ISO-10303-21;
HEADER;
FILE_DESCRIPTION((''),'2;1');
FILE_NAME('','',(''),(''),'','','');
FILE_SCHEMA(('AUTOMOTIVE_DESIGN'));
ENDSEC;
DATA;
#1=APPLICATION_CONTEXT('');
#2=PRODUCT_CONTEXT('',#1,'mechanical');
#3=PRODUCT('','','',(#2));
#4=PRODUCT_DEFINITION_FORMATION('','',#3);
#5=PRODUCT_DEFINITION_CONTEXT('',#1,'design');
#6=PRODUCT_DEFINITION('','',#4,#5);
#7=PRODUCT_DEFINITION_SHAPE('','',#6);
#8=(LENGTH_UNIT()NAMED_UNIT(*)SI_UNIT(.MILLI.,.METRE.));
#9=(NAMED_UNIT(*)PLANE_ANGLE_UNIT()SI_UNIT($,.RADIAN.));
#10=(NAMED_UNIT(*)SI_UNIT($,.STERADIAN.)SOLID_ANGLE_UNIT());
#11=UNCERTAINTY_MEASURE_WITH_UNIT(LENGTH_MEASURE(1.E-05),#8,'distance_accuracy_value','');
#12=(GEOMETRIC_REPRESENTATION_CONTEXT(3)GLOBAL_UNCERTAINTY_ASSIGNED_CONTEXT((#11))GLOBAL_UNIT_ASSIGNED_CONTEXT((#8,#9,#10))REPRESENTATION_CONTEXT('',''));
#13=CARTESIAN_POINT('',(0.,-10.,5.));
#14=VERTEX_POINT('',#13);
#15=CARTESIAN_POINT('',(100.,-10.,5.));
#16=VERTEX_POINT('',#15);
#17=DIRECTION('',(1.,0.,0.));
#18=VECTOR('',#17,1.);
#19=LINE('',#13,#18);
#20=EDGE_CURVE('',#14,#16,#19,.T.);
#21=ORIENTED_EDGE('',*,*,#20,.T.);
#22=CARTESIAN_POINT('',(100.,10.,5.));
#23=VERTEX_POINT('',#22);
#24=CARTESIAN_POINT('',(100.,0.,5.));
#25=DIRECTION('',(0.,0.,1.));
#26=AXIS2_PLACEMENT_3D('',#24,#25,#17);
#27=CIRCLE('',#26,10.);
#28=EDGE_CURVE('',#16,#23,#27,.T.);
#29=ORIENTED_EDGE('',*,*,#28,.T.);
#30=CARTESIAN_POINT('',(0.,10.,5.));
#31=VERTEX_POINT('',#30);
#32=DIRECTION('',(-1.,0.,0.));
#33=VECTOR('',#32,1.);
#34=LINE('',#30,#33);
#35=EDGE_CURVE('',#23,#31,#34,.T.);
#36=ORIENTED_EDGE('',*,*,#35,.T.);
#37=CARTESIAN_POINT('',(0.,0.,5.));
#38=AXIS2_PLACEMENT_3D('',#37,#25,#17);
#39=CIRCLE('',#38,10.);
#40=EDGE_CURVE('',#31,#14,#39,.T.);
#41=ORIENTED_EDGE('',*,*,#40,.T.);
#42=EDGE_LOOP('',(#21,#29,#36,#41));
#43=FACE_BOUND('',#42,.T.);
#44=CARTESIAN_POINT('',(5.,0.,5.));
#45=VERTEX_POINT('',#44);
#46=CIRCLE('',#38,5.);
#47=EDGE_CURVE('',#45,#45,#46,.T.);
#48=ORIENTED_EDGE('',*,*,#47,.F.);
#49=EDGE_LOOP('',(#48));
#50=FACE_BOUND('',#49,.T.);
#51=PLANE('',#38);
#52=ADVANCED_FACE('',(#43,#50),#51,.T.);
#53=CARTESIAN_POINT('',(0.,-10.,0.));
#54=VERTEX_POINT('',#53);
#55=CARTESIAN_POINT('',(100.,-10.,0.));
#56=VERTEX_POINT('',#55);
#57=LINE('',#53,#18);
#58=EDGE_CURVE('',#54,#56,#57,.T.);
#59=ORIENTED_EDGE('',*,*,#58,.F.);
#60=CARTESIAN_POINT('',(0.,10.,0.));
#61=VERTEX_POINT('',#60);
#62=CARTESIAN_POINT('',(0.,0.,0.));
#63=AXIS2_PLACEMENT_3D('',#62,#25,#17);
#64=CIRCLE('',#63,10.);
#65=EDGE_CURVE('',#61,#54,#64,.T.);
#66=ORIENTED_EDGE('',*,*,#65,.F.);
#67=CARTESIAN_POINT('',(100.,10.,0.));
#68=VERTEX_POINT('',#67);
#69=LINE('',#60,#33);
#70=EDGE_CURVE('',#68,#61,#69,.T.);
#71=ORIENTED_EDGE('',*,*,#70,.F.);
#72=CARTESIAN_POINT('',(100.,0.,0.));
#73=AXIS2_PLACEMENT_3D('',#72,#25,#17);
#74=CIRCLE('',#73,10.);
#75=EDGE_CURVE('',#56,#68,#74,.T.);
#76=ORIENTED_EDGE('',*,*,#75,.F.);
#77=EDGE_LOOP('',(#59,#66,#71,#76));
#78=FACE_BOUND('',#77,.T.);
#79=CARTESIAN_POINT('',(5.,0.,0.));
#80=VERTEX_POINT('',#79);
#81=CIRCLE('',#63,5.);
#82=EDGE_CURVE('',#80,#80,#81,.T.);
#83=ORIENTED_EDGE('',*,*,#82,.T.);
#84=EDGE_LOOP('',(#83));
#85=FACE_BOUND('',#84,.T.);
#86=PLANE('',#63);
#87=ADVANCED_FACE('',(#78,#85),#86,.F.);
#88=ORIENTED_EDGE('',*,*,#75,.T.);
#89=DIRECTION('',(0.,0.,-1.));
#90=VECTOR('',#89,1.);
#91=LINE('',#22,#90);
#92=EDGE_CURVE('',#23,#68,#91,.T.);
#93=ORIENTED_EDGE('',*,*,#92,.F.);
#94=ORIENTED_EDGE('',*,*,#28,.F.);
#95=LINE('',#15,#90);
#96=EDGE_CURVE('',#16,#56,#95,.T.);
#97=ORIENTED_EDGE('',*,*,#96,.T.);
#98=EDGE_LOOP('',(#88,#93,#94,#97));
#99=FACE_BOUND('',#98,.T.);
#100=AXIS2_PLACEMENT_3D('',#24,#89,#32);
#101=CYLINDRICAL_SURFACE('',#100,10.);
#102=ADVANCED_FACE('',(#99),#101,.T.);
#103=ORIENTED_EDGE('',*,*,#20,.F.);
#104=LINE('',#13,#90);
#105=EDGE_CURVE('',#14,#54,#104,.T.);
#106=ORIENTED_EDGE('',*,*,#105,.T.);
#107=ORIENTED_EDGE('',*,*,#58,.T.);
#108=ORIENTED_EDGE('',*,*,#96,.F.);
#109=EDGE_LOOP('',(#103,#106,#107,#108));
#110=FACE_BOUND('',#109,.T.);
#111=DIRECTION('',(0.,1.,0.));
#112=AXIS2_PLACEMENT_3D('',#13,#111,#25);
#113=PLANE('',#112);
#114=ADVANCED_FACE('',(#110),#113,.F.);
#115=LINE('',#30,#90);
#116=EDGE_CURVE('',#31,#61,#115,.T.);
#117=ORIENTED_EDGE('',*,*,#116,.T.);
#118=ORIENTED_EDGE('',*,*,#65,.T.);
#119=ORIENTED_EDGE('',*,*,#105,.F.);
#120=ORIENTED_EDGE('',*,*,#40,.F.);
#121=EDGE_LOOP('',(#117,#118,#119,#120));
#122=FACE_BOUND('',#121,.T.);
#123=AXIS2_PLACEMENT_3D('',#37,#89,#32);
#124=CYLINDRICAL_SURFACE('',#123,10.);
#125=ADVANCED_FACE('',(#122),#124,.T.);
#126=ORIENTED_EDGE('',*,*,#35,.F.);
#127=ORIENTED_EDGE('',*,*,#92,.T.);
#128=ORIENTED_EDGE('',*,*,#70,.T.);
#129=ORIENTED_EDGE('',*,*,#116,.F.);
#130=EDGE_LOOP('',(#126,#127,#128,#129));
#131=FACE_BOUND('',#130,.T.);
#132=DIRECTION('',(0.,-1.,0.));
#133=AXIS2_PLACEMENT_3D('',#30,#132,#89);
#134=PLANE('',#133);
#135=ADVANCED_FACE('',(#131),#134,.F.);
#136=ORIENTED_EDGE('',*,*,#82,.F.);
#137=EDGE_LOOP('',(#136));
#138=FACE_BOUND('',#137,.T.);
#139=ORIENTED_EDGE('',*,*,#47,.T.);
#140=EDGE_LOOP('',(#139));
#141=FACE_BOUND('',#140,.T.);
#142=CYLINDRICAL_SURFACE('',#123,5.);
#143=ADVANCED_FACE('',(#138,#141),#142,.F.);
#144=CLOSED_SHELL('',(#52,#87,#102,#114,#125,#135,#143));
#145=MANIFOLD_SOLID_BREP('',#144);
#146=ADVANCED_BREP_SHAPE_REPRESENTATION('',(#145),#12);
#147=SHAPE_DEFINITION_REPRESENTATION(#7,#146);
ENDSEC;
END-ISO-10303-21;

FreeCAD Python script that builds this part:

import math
import FreeCAD as App
import Part
import Sketcher
from FreeCAD import Vector

doc = App.newDocument("Part")
body = doc.addObject("PartDesign::Body", "Body")

# Sketch on XY plane
sketch1 = doc.addObject("Sketcher::SketchObject", "Sketch")
body.addObject(sketch1)
sketch1.AttachmentSupport = (doc.XY_Plane, [""])
sketch1.MapMode = "FlatFace"
sketch1.addGeometry(Part.LineSegment(Vector(100, 10, 0), Vector(0, 10, 0)), False)
sketch1.addGeometry(Part.ArcOfCircle(Part.Circle(Vector(0, 0, 0), Vector(0, 0, 1), 10), math.radians(90), math.radians(270)), False)
sketch1.addGeometry(Part.LineSegment(Vector(0, -10, 0), Vector(100, -10, 0)), False)
sketch1.addGeometry(Part.ArcOfCircle(Part.Circle(Vector(100, 0, 0), Vector(0, 0, 1), 10), math.radians(-90), math.radians(90)), False)
sketch1.addGeometry(Part.Circle(Vector(0, 0, 0), Vector(0, 0, 1), 5), False)
sketch1.addConstraint(Sketcher.Constraint("Tangent", 0, 2, 1, 1))
sketch1.addConstraint(Sketcher.Constraint("Tangent", 1, 2, 2, 1))
sketch1.addConstraint(Sketcher.Constraint("Tangent", 2, 2, 3, 1))
sketch1.addConstraint(Sketcher.Constraint("Tangent", 3, 2, 0, 1))
sketch1.addConstraint(Sketcher.Constraint("Horizontal", 0))
sketch1.addConstraint(Sketcher.Constraint("Horizontal", 2))
sketch1.addConstraint(Sketcher.Constraint("Coincident", 1, 3, -1, 1))
sketch1.addConstraint(Sketcher.Constraint("Coincident", 4, 3, -1, 1))
sketch1.addConstraint(Sketcher.Constraint("Diameter", 4, 10.0))
sketch1.addConstraint(Sketcher.Constraint("Radius", 1, 10.0))
sketch1.addConstraint(Sketcher.Constraint("DistanceX", 0, 2, 0, 1, 100.0))
pad1 = doc.addObject("PartDesign::Pad", "Pad")
body.addObject(pad1)
pad1.Profile = sketch1
pad1.Length = 5

doc.recompute()
